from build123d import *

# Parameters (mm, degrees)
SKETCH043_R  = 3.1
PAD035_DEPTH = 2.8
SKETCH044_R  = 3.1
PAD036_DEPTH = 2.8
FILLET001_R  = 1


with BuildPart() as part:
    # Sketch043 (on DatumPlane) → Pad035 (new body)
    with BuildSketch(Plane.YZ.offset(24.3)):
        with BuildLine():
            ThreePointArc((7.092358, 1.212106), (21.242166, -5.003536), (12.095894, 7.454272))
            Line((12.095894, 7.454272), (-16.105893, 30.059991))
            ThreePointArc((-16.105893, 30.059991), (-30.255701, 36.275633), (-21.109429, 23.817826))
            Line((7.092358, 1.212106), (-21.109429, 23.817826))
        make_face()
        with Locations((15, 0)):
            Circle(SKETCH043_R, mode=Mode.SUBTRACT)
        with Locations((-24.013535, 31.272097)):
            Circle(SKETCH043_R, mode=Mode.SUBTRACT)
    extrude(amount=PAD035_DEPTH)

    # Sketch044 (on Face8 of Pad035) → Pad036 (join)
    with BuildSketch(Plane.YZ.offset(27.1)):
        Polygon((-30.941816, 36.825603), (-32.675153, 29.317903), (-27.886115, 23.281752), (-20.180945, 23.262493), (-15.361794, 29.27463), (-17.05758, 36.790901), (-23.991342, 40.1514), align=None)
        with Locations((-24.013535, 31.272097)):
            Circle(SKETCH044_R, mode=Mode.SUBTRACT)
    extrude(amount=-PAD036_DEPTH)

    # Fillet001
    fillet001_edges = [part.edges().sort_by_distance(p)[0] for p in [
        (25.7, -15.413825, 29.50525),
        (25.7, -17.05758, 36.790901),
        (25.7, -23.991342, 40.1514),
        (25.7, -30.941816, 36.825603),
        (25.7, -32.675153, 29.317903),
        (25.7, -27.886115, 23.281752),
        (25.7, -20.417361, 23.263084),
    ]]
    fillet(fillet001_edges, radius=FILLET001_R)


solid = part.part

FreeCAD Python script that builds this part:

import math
import FreeCAD as App
import Part
import Sketcher
from FreeCAD import Vector
Q = App.Units.Quantity


def edges_at(feature, points):
    """Names of the edges that pass closest to the given points."""
    edges = feature.Shape.Edges
    near = lambda p: min(range(len(edges)), key=lambda i: edges[i].distToShape(Part.Vertex(*p))[0])
    return sorted({f"Edge{near(p) + 1}" for p in points})

doc = App.newDocument("Part")
body = doc.addObject("PartDesign::Body", "Body")

sketch1 = body.newObject("Sketcher::SketchObject", "Sketch")
sketch1.AttachmentSupport = (doc.getObject("YZ_Plane"), [""])
sketch1.MapMode = "FlatFace"
sketch1.AttachmentOffset = App.Placement(Vector(0, 0, 24.3), App.Rotation())
sketch1.addGeometry(Part.ArcOfCircle(Part.Circle(Vector(15, 0, 0), Vector(0, 0, 1), 8), math.radians(171), math.radians(471)), False)
sketch1.addGeometry(Part.LineSegment(Vector(12.1, 7.5, 0), Vector(-16.1, 30.1, 0)), False)
sketch1.addGeometry(Part.ArcOfCircle(Part.Circle(Vector(-24, 31.3, 0), Vector(0, 0, 1), 8), math.radians(-9), math.radians(291)), False)
sketch1.addGeometry(Part.LineSegment(Vector(-21.1, 23.8, 0), Vector(7.1, 1.2, 0)), False)
sketch1.addGeometry(Part.Circle(Vector(15, 0, 0), Vector(0, 0, 1), 3.1), False)
sketch1.addGeometry(Part.Circle(Vector(-24, 31.3, 0), Vector(0, 0, 1), 3.1), False)
sketch1.addConstraint(Sketcher.Constraint("Coincident", 0, 2, 1, 1))
sketch1.addConstraint(Sketcher.Constraint("Coincident", 1, 2, 2, 1))
sketch1.addConstraint(Sketcher.Constraint("Coincident", 2, 2, 3, 1))
sketch1.addConstraint(Sketcher.Constraint("Coincident", 3, 2, 0, 1))
sketch1.addConstraint(Sketcher.Constraint("Coincident", 4, 3, 0, 3))
sketch1.addConstraint(Sketcher.Constraint("Coincident", 5, 3, 2, 3))
sketch1.addConstraint(Sketcher.Constraint("Equal", 0, 2))
sketch1.addConstraint(Sketcher.Constraint("Equal", 4, 5))
sketch1.addConstraint(Sketcher.Constraint("PointOnObject", 0, 3, -1))
sketch1.addConstraint(Sketcher.Constraint("Parallel", 1, 3))
sketch1.addConstraint(Sketcher.Constraint("Equal", 1, 3))
sketch1.addConstraint(Sketcher.Constraint("Radius", 0, Q("8 mm")))
sketch1.addConstraint(Sketcher.Constraint("Diameter", 4, Q("6.2 mm")))
sketch1.addConstraint(Sketcher.Constraint("DistanceX", -1, 1, 0, 3, Q("15 mm")))
sketch1.addConstraint(Sketcher.Constraint("DistanceY", -1, 1, 2, 3, Q("31.272098 mm")))
sketch1.addConstraint(Sketcher.Constraint("DistanceY", -1, 1, 0, 2, Q("7.454272 mm")))
sketch1.addConstraint(Sketcher.Constraint("DistanceY", -1, 1, 1, 2, Q("30.059991 mm")))
sketch1.addConstraint(Sketcher.Constraint("DistanceX", 2, 2, -1, 1, Q("21.109429 mm")))
pad1 = body.newObject("PartDesign::Pad", "Pad")
pad1.Profile = sketch1
pad1.Length = 2.8

sketch2 = body.newObject("Sketcher::SketchObject", "Sketch001")
sketch2.AttachmentSupport = (doc.getObject("YZ_Plane"), [""])
sketch2.MapMode = "FlatFace"
sketch2.AttachmentOffset = App.Placement(Vector(0, 0, 27.1), App.Rotation())
sketch2.addGeometry(Part.LineSegment(Vector(-30.9, 36.8, 0), Vector(-32.7, 29.3, 0)), False)
sketch2.addGeometry(Part.LineSegment(Vector(-32.7, 29.3, 0), Vector(-27.9, 23.3, 0)), False)
sketch2.addGeometry(Part.LineSegment(Vector(-27.9, 23.3, 0), Vector(-20.2, 23.3, 0)), False)
sketch2.addGeometry(Part.LineSegment(Vector(-20.2, 23.3, 0), Vector(-15.4, 29.3, 0)), False)
sketch2.addGeometry(Part.LineSegment(Vector(-15.4, 29.3, 0), Vector(-17.1, 36.8, 0)), False)
sketch2.addGeometry(Part.LineSegment(Vector(-17.1, 36.8, 0), Vector(-24, 40.2, 0)), False)
sketch2.addGeometry(Part.LineSegment(Vector(-24, 40.2, 0), Vector(-30.9, 36.8, 0)), False)
sketch2.addGeometry(Part.Circle(Vector(-24, 31.3, 0), Vector(0, 0, 1), 3.1), False)
sketch2.addConstraint(Sketcher.Constraint("Coincident", 0, 2, 1, 1))
sketch2.addConstraint(Sketcher.Constraint("Coincident", 1, 2, 2, 1))
sketch2.addConstraint(Sketcher.Constraint("Coincident", 2, 2, 3, 1))
sketch2.addConstraint(Sketcher.Constraint("Coincident", 3, 2, 4, 1))
sketch2.addConstraint(Sketcher.Constraint("Coincident", 4, 2, 5, 1))
sketch2.addConstraint(Sketcher.Constraint("Coincident", 5, 2, 6, 1))
sketch2.addConstraint(Sketcher.Constraint("Coincident", 6, 2, 0, 1))
sketch2.addConstraint(Sketcher.Constraint("Equal", 0, 1))
sketch2.addConstraint(Sketcher.Constraint("Equal", 1, 2))
sketch2.addConstraint(Sketcher.Constraint("Equal", 2, 3))
sketch2.addConstraint(Sketcher.Constraint("Equal", 3, 4))
sketch2.addConstraint(Sketcher.Constraint("Equal", 4, 5))
sketch2.addConstraint(Sketcher.Constraint("Equal", 5, 6))
sketch2.addConstraint(Sketcher.Constraint("Diameter", 7, Q("6.2 mm")))
sketch2.addConstraint(Sketcher.Constraint("DistanceY", -1, 1, 4, 2, Q("36.790901 mm")))
sketch2.addConstraint(Sketcher.Constraint("DistanceY", -1, 1, 5, 2, Q("40.1514 mm")))
sketch2.addConstraint(Sketcher.Constraint("DistanceY", 0, 2, 6, 2, Q("7.5077 mm")))
sketch2.addConstraint(Sketcher.Constraint("DistanceX", 6, 2, 1, 2, Q("3.055701 mm")))
sketch2.addConstraint(Sketcher.Constraint("DistanceY", -1, 1, 3, 2, Q("29.27463 mm")))
sketch2.addConstraint(Sketcher.Constraint("DistanceX", 4, 2, -1, 1, Q("17.05758 mm")))
sketch2.addConstraint(Sketcher.Constraint("DistanceX", 5, 2, -1, 1, Q("23.991342 mm")))
sketch2.addConstraint(Sketcher.Constraint("DistanceX", 0, 2, 7, 3, Q("8.661618 mm")))
sketch2.addConstraint(Sketcher.Constraint("DistanceY", 2, 2, 1, 2, Q("0.019259 mm")))
sketch2.addConstraint(Sketcher.Constraint("DistanceY", -1, 1, 7, 3, Q("31.272097 mm")))
pad2 = body.newObject("PartDesign::Pad", "Pad001")
pad2.Profile = sketch2
pad2.Length = 2.8
pad2.Reversed = True
doc.recompute()

fillet = body.newObject("PartDesign::Fillet", "Fillet")
fillet.Base = (pad2, edges_at(pad2, [
    (25.7, -15.414, 29.505),
    (25.7, -17.058, 36.791),
    (25.7, -23.991, 40.151),
    (25.7, -30.942, 36.826),
    (25.7, -32.675, 29.318),
    (25.7, -27.886, 23.282),
    (25.7, -20.417, 23.263),
]))
fillet.Radius = 1

doc.recompute()
